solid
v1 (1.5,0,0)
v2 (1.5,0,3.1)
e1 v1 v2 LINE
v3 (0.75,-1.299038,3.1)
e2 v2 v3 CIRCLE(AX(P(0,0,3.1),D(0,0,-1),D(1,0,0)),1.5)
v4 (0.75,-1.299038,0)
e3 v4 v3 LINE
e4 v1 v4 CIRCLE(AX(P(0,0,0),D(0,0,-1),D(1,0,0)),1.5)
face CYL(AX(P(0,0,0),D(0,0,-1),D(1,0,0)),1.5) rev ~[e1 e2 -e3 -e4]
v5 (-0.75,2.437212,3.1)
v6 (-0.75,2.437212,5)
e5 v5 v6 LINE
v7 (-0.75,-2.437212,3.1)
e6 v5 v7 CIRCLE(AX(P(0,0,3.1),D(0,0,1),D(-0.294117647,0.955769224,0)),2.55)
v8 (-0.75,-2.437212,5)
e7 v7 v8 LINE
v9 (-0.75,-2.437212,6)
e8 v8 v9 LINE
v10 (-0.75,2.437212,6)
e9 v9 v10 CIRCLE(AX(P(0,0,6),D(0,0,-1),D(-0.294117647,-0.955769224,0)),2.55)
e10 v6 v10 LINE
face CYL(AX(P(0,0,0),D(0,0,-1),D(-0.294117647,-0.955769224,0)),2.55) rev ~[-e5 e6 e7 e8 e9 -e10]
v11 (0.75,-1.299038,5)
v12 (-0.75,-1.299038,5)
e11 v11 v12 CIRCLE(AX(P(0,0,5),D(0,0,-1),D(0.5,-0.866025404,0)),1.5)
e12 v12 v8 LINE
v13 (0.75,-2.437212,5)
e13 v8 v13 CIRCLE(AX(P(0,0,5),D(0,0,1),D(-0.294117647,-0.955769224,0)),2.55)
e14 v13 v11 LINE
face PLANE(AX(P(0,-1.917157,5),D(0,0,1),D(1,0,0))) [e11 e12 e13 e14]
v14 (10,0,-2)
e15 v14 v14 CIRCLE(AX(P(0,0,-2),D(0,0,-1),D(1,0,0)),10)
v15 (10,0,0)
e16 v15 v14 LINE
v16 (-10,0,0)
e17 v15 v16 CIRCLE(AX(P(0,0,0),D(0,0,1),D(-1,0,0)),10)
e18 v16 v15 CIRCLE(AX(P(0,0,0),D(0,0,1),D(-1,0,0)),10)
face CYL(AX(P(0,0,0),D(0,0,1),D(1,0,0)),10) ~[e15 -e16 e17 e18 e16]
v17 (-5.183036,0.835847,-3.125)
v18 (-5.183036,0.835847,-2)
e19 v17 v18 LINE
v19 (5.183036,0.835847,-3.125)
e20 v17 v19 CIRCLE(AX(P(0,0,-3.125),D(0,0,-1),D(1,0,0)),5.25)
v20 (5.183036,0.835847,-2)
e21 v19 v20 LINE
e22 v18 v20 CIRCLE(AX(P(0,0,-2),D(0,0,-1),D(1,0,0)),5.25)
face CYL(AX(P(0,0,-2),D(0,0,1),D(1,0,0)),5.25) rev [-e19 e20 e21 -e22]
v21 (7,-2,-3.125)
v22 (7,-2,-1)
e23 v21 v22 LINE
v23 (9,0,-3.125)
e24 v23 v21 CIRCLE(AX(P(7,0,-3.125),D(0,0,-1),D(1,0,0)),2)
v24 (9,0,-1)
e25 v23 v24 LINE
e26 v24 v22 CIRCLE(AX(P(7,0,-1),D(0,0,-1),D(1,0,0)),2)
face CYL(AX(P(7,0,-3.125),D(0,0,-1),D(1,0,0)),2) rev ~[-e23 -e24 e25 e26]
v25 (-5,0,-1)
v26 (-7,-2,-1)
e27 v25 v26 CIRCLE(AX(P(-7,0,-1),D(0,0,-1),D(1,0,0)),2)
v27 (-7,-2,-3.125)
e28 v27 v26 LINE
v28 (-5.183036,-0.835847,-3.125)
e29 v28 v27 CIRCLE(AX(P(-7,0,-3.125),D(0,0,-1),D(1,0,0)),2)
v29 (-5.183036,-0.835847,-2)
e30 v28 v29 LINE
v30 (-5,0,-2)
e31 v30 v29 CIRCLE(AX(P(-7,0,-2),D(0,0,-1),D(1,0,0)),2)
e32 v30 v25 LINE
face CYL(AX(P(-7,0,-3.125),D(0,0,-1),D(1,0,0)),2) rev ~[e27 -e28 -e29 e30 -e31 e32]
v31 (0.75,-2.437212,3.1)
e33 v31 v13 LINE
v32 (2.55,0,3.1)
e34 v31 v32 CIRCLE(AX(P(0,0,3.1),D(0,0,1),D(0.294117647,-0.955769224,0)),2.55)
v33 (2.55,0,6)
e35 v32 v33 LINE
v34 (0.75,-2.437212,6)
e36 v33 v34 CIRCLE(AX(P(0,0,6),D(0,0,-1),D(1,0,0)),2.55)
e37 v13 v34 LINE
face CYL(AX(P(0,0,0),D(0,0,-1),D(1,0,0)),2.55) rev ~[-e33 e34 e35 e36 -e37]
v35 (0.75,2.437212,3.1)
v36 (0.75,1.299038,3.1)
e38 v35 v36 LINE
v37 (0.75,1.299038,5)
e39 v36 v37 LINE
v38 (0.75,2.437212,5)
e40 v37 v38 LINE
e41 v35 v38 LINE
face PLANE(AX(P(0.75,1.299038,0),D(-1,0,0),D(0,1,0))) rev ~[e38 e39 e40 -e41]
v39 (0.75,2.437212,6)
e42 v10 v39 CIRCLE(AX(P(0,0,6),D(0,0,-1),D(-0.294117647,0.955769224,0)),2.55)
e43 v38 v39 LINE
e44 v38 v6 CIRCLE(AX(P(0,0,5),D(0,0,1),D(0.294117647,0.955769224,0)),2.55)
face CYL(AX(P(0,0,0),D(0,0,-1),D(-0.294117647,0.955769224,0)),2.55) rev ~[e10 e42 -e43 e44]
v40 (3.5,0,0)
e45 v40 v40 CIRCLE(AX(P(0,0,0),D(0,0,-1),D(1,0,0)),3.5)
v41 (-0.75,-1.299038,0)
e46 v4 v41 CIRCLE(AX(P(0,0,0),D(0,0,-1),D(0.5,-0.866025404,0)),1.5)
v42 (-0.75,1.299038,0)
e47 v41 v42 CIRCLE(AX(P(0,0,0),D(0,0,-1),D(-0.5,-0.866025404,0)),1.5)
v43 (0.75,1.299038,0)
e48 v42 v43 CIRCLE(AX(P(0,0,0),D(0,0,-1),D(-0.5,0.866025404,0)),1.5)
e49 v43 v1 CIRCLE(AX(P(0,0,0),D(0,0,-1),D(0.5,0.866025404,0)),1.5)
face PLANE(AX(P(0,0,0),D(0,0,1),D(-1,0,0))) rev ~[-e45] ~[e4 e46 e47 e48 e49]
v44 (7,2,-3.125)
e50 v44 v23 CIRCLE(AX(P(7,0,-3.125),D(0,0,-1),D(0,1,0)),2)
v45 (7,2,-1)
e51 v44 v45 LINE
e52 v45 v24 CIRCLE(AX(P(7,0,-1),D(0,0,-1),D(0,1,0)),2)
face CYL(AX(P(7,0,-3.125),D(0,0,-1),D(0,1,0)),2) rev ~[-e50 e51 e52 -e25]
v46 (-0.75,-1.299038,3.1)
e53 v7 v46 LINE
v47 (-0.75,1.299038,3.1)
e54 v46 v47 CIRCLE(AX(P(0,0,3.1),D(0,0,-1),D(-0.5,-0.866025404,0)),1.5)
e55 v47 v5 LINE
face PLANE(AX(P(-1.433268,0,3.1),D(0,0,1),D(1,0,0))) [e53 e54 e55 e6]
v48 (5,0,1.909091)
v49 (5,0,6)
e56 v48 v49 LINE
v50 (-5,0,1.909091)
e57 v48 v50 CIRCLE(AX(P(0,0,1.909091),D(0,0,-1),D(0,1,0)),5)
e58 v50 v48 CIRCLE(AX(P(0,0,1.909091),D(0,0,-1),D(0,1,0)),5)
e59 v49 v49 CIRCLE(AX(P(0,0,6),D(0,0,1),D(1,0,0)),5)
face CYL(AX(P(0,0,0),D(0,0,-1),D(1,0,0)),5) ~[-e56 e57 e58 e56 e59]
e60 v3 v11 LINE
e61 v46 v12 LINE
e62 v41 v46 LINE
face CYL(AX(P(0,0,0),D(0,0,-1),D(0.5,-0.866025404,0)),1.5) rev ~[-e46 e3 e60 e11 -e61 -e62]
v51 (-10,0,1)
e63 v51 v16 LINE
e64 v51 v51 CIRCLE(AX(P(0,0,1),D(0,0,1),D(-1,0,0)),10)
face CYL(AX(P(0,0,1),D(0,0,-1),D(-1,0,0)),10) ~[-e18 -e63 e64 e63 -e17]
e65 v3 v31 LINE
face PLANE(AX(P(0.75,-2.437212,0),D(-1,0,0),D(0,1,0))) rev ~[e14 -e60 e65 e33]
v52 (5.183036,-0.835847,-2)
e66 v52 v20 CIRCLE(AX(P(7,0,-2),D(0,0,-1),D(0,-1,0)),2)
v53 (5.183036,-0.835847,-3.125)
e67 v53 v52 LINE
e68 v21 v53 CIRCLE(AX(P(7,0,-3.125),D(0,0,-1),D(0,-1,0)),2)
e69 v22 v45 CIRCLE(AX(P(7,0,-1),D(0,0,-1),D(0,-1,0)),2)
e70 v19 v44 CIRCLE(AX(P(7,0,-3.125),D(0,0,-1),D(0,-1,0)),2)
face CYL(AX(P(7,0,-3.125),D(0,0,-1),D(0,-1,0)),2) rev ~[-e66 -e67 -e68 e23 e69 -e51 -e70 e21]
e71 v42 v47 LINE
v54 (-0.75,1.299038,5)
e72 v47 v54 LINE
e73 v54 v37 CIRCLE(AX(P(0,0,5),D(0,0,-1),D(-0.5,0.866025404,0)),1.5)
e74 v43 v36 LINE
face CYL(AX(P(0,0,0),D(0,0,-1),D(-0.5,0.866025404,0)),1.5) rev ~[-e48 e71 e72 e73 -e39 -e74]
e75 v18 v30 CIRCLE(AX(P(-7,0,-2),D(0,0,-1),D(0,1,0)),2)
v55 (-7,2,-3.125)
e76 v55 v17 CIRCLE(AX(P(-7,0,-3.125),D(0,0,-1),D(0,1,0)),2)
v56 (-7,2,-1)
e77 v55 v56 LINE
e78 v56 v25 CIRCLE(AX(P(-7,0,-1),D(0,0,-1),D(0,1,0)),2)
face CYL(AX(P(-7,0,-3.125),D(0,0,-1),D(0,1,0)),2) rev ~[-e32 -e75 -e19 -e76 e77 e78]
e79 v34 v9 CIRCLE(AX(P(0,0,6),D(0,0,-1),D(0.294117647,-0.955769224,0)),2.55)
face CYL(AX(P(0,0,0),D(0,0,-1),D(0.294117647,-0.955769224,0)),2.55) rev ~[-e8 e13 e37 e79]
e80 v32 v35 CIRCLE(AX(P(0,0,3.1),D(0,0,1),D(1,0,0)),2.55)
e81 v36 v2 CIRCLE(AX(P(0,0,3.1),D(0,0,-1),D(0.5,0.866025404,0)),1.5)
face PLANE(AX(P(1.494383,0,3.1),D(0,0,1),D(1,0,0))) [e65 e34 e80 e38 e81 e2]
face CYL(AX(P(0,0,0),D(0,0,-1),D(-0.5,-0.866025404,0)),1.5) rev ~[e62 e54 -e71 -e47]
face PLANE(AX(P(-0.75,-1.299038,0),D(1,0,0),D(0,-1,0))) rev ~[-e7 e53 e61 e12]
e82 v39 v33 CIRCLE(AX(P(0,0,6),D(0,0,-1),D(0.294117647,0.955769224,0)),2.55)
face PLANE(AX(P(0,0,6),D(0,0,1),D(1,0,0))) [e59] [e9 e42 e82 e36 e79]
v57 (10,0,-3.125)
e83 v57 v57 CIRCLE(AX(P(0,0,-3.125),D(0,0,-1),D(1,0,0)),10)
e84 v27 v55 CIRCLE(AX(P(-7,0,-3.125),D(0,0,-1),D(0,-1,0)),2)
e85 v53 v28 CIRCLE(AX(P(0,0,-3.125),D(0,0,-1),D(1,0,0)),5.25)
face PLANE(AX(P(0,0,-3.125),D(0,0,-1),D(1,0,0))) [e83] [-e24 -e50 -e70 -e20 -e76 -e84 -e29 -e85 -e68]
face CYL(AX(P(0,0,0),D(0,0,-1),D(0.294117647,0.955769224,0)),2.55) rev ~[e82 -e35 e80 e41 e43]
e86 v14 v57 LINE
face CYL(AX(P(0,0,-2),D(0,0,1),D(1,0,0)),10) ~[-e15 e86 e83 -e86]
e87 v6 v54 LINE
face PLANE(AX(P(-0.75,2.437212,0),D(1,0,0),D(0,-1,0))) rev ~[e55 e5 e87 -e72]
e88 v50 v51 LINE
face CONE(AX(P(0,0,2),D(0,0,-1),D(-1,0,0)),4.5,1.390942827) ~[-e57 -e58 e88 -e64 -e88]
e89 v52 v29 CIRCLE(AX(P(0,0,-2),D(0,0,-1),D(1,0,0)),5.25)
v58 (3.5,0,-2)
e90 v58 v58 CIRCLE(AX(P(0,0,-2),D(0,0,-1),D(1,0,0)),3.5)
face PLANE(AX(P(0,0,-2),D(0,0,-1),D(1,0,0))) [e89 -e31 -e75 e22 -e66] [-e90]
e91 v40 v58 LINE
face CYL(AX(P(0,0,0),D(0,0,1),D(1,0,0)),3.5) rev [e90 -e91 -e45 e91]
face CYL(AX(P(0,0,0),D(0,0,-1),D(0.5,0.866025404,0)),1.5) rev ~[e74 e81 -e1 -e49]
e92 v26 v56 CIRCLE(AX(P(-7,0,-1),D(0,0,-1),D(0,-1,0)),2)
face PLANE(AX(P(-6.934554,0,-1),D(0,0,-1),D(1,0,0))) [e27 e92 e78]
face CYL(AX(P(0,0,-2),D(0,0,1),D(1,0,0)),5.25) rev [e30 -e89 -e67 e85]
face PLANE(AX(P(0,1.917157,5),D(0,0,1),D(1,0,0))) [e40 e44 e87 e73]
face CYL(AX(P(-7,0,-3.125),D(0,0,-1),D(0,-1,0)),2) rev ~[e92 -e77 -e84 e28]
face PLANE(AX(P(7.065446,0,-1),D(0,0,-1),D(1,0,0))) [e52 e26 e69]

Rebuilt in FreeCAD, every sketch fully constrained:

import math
import FreeCAD as App
import Part
import Sketcher
from FreeCAD import Vector
Q = App.Units.Quantity

doc = App.newDocument("Part")
body = doc.addObject("PartDesign::Body", "Body")

# Sketch on XY plane
sketch1 = body.newObject("Sketcher::SketchObject", "Sketch")
sketch1.AttachmentSupport = (doc.getObject("XY_Plane"), [""])
sketch1.MapMode = "FlatFace"
sketch1.addGeometry(Part.Circle(Vector(0, 0, 0), Vector(0, 0, 1), 5), False)
sketch1.addGeometry(Part.ArcOfCircle(Part.Circle(Vector(0, 0, 0), Vector(0, 0, 1), 2.55), math.radians(72.895365), math.radians(107.104635)), False)
sketch1.addGeometry(Part.ArcOfCircle(Part.Circle(Vector(0, 0, 0), Vector(0, 0, 1), 2.55), math.radians(0), math.radians(72.895365)), False)
sketch1.addGeometry(Part.ArcOfCircle(Part.Circle(Vector(0, 0, 0), Vector(0, 0, 1), 2.55), math.radians(-72.895365), math.radians(0)), False)
sketch1.addGeometry(Part.ArcOfCircle(Part.Circle(Vector(0, 0, 0), Vector(0, 0, 1), 2.55), math.radians(-107.104635), math.radians(-72.895365)), False)
sketch1.addGeometry(Part.ArcOfCircle(Part.Circle(Vector(0, 0, 0), Vector(0, 0, 1), 2.55), math.radians(107.104635), math.radians(252.895365)), False)
sketch1.addConstraint(Sketcher.Constraint("Tangent", 1, 1, 2, 2))
sketch1.addConstraint(Sketcher.Constraint("Tangent", 2, 1, 3, 2))
sketch1.addConstraint(Sketcher.Constraint("Tangent", 3, 1, 4, 2))
sketch1.addConstraint(Sketcher.Constraint("Tangent", 4, 1, 5, 2))
sketch1.addConstraint(Sketcher.Constraint("Tangent", 5, 1, 1, 2))
sketch1.addConstraint(Sketcher.Constraint("Coincident", 0, 3, -1, 1))
sketch1.addConstraint(Sketcher.Constraint("Coincident", 1, 3, -1, 1))
sketch1.addConstraint(Sketcher.Constraint("Coincident", 3, 3, -1, 1))
sketch1.addConstraint(Sketcher.Constraint("PointOnObject", 2, 1, -1))
sketch1.addConstraint(Sketcher.Constraint("Horizontal", 3, 1, 4, 1))
sketch1.addConstraint(Sketcher.Constraint("Horizontal", 1, 1, 5, 1))
sketch1.addConstraint(Sketcher.Constraint("Vertical", 1, 1, 3, 1))
sketch1.addConstraint(Sketcher.Constraint("Diameter", 0, Q("10 mm")))
sketch1.addConstraint(Sketcher.Constraint("Radius", 1, Q("2.55 mm")))
sketch1.addConstraint(Sketcher.Constraint("DistanceX", 4, 1, 3, 1, Q("1.5 mm")))
pad1 = body.newObject("PartDesign::Pad", "Pad")
pad1.Profile = sketch1
pad1.Length = 6

# Sketch on XY plane
sketch2 = body.newObject("Sketcher::SketchObject", "Sketch001")
sketch2.AttachmentSupport = (doc.getObject("XY_Plane"), [""])
sketch2.MapMode = "FlatFace"
sketch2.addGeometry(Part.LineSegment(Vector(0.75, 1.299038, 0), Vector(0.75, 2.437212, 0)), False)
sketch2.addGeometry(Part.ArcOfCircle(Part.Circle(Vector(0, 0, 0), Vector(0, 0, 1), 2.55), math.radians(72.895365), math.radians(107.104635)), False)
sketch2.addGeometry(Part.LineSegment(Vector(-0.75, 2.437212, 0), Vector(-0.75, 1.299038, 0)), False)
sketch2.addGeometry(Part.ArcOfCircle(Part.Circle(Vector(0, 0, 0), Vector(0, 0, 1), 1.5), math.radians(60), math.radians(120)), False)
sketch2.addGeometry(Part.ArcOfCircle(Part.Circle(Vector(0, 0, 0), Vector(0, 0, 1), 2.55), math.radians(-107.104635), math.radians(-72.895365)), False)
sketch2.addGeometry(Part.LineSegment(Vector(0.75, -2.437212, 0), Vector(0.75, -1.299038, 0)), False)
sketch2.addGeometry(Part.ArcOfCircle(Part.Circle(Vector(0, 0, 0), Vector(0, 0, 1), 1.5), math.radians(-120), math.radians(-60)), False)
sketch2.addGeometry(Part.LineSegment(Vector(-0.75, -1.299038, 0), Vector(-0.75, -2.437212, 0)), False)
sketch2.addConstraint(Sketcher.Constraint("Coincident", 0, 2, 1, 1))
sketch2.addConstraint(Sketcher.Constraint("Coincident", 1, 2, 2, 1))
sketch2.addConstraint(Sketcher.Constraint("Coincident", 2, 2, 3, 2))
sketch2.addConstraint(Sketcher.Constraint("Coincident", 3, 1, 0, 1))
sketch2.addConstraint(Sketcher.Constraint("Coincident", 4, 2, 5, 1))
sketch2.addConstraint(Sketcher.Constraint("Coincident", 5, 2, 6, 2))
sketch2.addConstraint(Sketcher.Constraint("Coincident", 6, 1, 7, 1))
sketch2.addConstraint(Sketcher.Constraint("Coincident", 7, 2, 4, 1))
sketch2.addConstraint(Sketcher.Constraint("Vertical", 0))
sketch2.addConstraint(Sketcher.Constraint("Vertical", 2))
sketch2.addConstraint(Sketcher.Constraint("Vertical", 5))
sketch2.addConstraint(Sketcher.Constraint("Vertical", 7))
sketch2.addConstraint(Sketcher.Constraint("Coincident", 1, 3, -1, 1))
sketch2.addConstraint(Sketcher.Constraint("Coincident", 3, 3, -1, 1))
sketch2.addConstraint(Sketcher.Constraint("Coincident", 4, 3, -1, 1))
sketch2.addConstraint(Sketcher.Constraint("Coincident", 6, 3, -1, 1))
sketch2.addConstraint(Sketcher.Constraint("Equal", 1, 4))
sketch2.addConstraint(Sketcher.Constraint("Equal", 3, 6))
sketch2.addConstraint(Sketcher.Constraint("Horizontal", 0, 2, 1, 2))
sketch2.addConstraint(Sketcher.Constraint("Horizontal", 5, 2, 6, 1))
sketch2.addConstraint(Sketcher.Constraint("Vertical", 3, 1, 4, 2))
sketch2.addConstraint(Sketcher.Constraint("Radius", 3, Q("1.5 mm")))
sketch2.addConstraint(Sketcher.Constraint("Radius", 1, Q("2.55 mm")))
sketch2.addConstraint(Sketcher.Constraint("DistanceX", 1, 2, 0, 2, Q("1.5 mm")))
pad2 = body.newObject("PartDesign::Pad", "Pad001")
pad2.Profile = sketch2
pad2.Length = 5

# Sketch on XY plane
sketch3 = body.newObject("Sketcher::SketchObject", "Sketch002")
sketch3.AttachmentSupport = (doc.getObject("XY_Plane"), [""])
sketch3.MapMode = "FlatFace"
sketch3.addGeometry(Part.LineSegment(Vector(-0.75, 1.299038, 0), Vector(-0.75, 2.437212, 0)), False)
sketch3.addGeometry(Part.ArcOfCircle(Part.Circle(Vector(0, 0, 0), Vector(0, 0, 1), 2.55), math.radians(107.104635), math.radians(252.895365)), False)
sketch3.addGeometry(Part.LineSegment(Vector(-0.75, -2.437212, 0), Vector(-0.75, -1.299038, 0)), False)
sketch3.addGeometry(Part.ArcOfCircle(Part.Circle(Vector(0, 0, 0), Vector(0, 0, 1), 1.5), math.radians(120), math.radians(240)), False)
sketch3.addGeometry(Part.ArcOfCircle(Part.Circle(Vector(0, 0, 0), Vector(0, 0, 1), 2.55), math.radians(-72.895365), math.radians(0)), False)
sketch3.addGeometry(Part.ArcOfCircle(Part.Circle(Vector(0, 0, 0), Vector(0, 0, 1), 2.55), math.radians(0), math.radians(72.895365)), False)
sketch3.addGeometry(Part.LineSegment(Vector(0.75, 2.437212, 0), Vector(0.75, 1.299038, 0)), False)
sketch3.addGeometry(Part.ArcOfCircle(Part.Circle(Vector(0, 0, 0), Vector(0, 0, 1), 1.5), math.radians(0), math.radians(60)), False)
sketch3.addGeometry(Part.ArcOfCircle(Part.Circle(Vector(0, 0, 0), Vector(0, 0, 1), 1.5), math.radians(-60), math.radians(0)), False)
sketch3.addGeometry(Part.LineSegment(Vector(0.75, -1.299038, 0), Vector(0.75, -2.437212, 0)), False)
sketch3.addConstraint(Sketcher.Constraint("Coincident", 0, 2, 1, 1))
sketch3.addConstraint(Sketcher.Constraint("Coincident", 1, 2, 2, 1))
sketch3.addConstraint(Sketcher.Constraint("Coincident", 2, 2, 3, 2))
sketch3.addConstraint(Sketcher.Constraint("Coincident", 3, 1, 0, 1))
sketch3.addConstraint(Sketcher.Constraint("Tangent", 4, 2, 5, 1))
sketch3.addConstraint(Sketcher.Constraint("Coincident", 5, 2, 6, 1))
sketch3.addConstraint(Sketcher.Constraint("Coincident", 6, 2, 7, 2))
sketch3.addConstraint(Sketcher.Constraint("Tangent", 7, 1, 8, 2))
sketch3.addConstraint(Sketcher.Constraint("Coincident", 8, 1, 9, 1))
sketch3.addConstraint(Sketcher.Constraint("Coincident", 9, 2, 4, 1))
sketch3.addConstraint(Sketcher.Constraint("Vertical", 0))
sketch3.addConstraint(Sketcher.Constraint("Vertical", 2))
sketch3.addConstraint(Sketcher.Constraint("Vertical", 6))
sketch3.addConstraint(Sketcher.Constraint("Vertical", 9))
sketch3.addConstraint(Sketcher.Constraint("Coincident", 1, 3, -1, 1))
sketch3.addConstraint(Sketcher.Constraint("Coincident", 3, 3, -1, 1))
sketch3.addConstraint(Sketcher.Constraint("Coincident", 4, 3, -1, 1))
sketch3.addConstraint(Sketcher.Constraint("Coincident", 7, 3, -1, 1))
sketch3.addConstraint(Sketcher.Constraint("Equal", 1, 4))
sketch3.addConstraint(Sketcher.Constraint("Equal", 4, 5))
sketch3.addConstraint(Sketcher.Constraint("Equal", 3, 7))
sketch3.addConstraint(Sketcher.Constraint("Equal", 7, 8))
sketch3.addConstraint(Sketcher.Constraint("PointOnObject", 4, 2, -1))
sketch3.addConstraint(Sketcher.Constraint("PointOnObject", 7, 1, -1))
sketch3.addConstraint(Sketcher.Constraint("Horizontal", 0, 2, 5, 2))
sketch3.addConstraint(Sketcher.Constraint("Horizontal", 2, 2, 8, 1))
sketch3.addConstraint(Sketcher.Constraint("Vertical", 0, 2, 1, 2))
sketch3.addConstraint(Sketcher.Constraint("Radius", 3, Q("1.5 mm")))
sketch3.addConstraint(Sketcher.Constraint("Radius", 1, Q("2.55 mm")))
sketch3.addConstraint(Sketcher.Constraint("DistanceX", 0, 2, 5, 2, Q("1.5 mm")))
pad3 = body.newObject("PartDesign::Pad", "Pad002")
pad3.Profile = sketch3
pad3.Length = 3.1

# Sketch on XZ plane
sketch4 = body.newObject("Sketcher::SketchObject", "Sketch003")
sketch4.AttachmentSupport = (doc.getObject("XZ_Plane"), [""])
sketch4.MapMode = "FlatFace"
sketch4.addGeometry(Part.LineSegment(Vector(-10, 0, 0), Vector(-4, 0, 0)), False)
sketch4.addGeometry(Part.LineSegment(Vector(-4, 0, 0), Vector(-4, 2, 0)), False)
sketch4.addGeometry(Part.LineSegment(Vector(-4, 2, 0), Vector(-4.5, 2, 0)), False)
sketch4.addGeometry(Part.LineSegment(Vector(-4.5, 2, 0), Vector(-10, 1, 0)), False)
sketch4.addGeometry(Part.LineSegment(Vector(-10, 1, 0), Vector(-10, 0, 0)), False)
sketch4.addConstraint(Sketcher.Constraint("Coincident", 0, 2, 1, 1))
sketch4.addConstraint(Sketcher.Constraint("Coincident", 1, 2, 2, 1))
sketch4.addConstraint(Sketcher.Constraint("Coincident", 2, 2, 3, 1))
sketch4.addConstraint(Sketcher.Constraint("Coincident", 3, 2, 4, 1))
sketch4.addConstraint(Sketcher.Constraint("Coincident", 4, 2, 0, 1))
sketch4.addConstraint(Sketcher.Constraint("Horizontal", 0))
sketch4.addConstraint(Sketcher.Constraint("Vertical", 1))
sketch4.addConstraint(Sketcher.Constraint("Horizontal", 2))
sketch4.addConstraint(Sketcher.Constraint("Vertical", 4))
sketch4.addConstraint(Sketcher.Constraint("PointOnObject", 0, 2, -1))
sketch4.addConstraint(Sketcher.Constraint("DistanceX", 0, 1, 0, 2, Q("6 mm")))
sketch4.addConstraint(Sketcher.Constraint("DistanceY", 1, 1, 1, 2, Q("2 mm")))
sketch4.addConstraint(Sketcher.Constraint("DistanceY", 4, 2, 4, 1, Q("1 mm")))
sketch4.addConstraint(Sketcher.Constraint("DistanceX", 2, 2, 2, 1, Q("0.5 mm")))
sketch4.addConstraint(Sketcher.Constraint("DistanceX", 0, 2, -1, 1, Q("4 mm")))
revolution = body.newObject("PartDesign::Revolution", "Revolution")
revolution.Profile = sketch4
revolution.ReferenceAxis = (sketch4, ["V_Axis"])
revolution.Angle = 360

# Sketch on XY plane
sketch5 = body.newObject("Sketcher::SketchObject", "Sketch004")
sketch5.AttachmentSupport = (doc.getObject("XY_Plane"), [""])
sketch5.MapMode = "FlatFace"
sketch5.addGeometry(Part.Circle(Vector(0, 0, 0), Vector(0, 0, 1), 10), False)
sketch5.addGeometry(Part.Circle(Vector(0, 0, 0), Vector(0, 0, 1), 3.5), False)
sketch5.addConstraint(Sketcher.Constraint("Coincident", 0, 3, -1, 1))
sketch5.addConstraint(Sketcher.Constraint("Coincident", 1, 3, -1, 1))
sketch5.addConstraint(Sketcher.Constraint("Diameter", 0, Q("20 mm")))
sketch5.addConstraint(Sketcher.Constraint("Diameter", 1, Q("7 mm")))
pad4 = body.newObject("PartDesign::Pad", "Pad003")
pad4.Profile = sketch5
pad4.Length = 2
pad4.Reversed = True

# Sketch on XY plane
sketch6 = body.newObject("Sketcher::SketchObject", "Sketch005")
sketch6.AttachmentSupport = (doc.getObject("XY_Plane"), [""])
sketch6.MapMode = "FlatFace"
sketch6.AttachmentOffset = App.Placement(Vector(0, 0, -2), App.Rotation())
sketch6.addGeometry(Part.Circle(Vector(0, 0, 0), Vector(0, 0, 1), 10), False)
sketch6.addGeometry(Part.Circle(Vector(0, 0, 0), Vector(0, 0, 1), 5.25), False)
sketch6.addConstraint(Sketcher.Constraint("Coincident", 0, 3, -1, 1))
sketch6.addConstraint(Sketcher.Constraint("Coincident", 1, 3, -1, 1))
sketch6.addConstraint(Sketcher.Constraint("Diameter", 0, Q("20 mm")))
sketch6.addConstraint(Sketcher.Constraint("Diameter", 1, Q("10.5 mm")))
pad5 = body.newObject("PartDesign::Pad", "Pad004")
pad5.Profile = sketch6
pad5.Length = 1.125
pad5.Reversed = True

# Sketch on XY plane
sketch7 = body.newObject("Sketcher::SketchObject", "Sketch006")
sketch7.AttachmentSupport = (doc.getObject("XY_Plane"), [""])
sketch7.MapMode = "FlatFace"
sketch7.AttachmentOffset = App.Placement(Vector(0, 0, -3.125), App.Rotation())
sketch7.addGeometry(Part.ArcOfCircle(Part.Circle(Vector(-7, 0, 0), Vector(0, 0, 1), 2), math.radians(0), math.radians(90)), False)
sketch7.addGeometry(Part.ArcOfCircle(Part.Circle(Vector(-7, 0, 0), Vector(0, 0, 1), 2), math.radians(-90), math.radians(0)), False)
sketch7.addGeometry(Part.ArcOfCircle(Part.Circle(Vector(-7, 0, 0), Vector(0, 0, 1), 2), math.radians(90), math.radians(270)), False)
sketch7.addGeometry(Part.ArcOfCircle(Part.Circle(Vector(7, 0, 0), Vector(0, 0, 1), 2), math.radians(0), math.radians(90)), False)
sketch7.addGeometry(Part.ArcOfCircle(Part.Circle(Vector(7, 0, 0), Vector(0, 0, 1), 2), math.radians(-90), math.radians(0)), False)
sketch7.addGeometry(Part.ArcOfCircle(Part.Circle(Vector(7, 0, 0), Vector(0, 0, 1), 2), math.radians(90), math.radians(270)), False)
sketch7.addConstraint(Sketcher.Constraint("Tangent", 0, 1, 1, 2))
sketch7.addConstraint(Sketcher.Constraint("Tangent", 1, 1, 2, 2))
sketch7.addConstraint(Sketcher.Constraint("Tangent", 2, 1, 0, 2))
sketch7.addConstraint(Sketcher.Constraint("Tangent", 3, 1, 4, 2))
sketch7.addConstraint(Sketcher.Constraint("Tangent", 4, 1, 5, 2))
sketch7.addConstraint(Sketcher.Constraint("Tangent", 5, 1, 3, 2))
sketch7.addConstraint(Sketcher.Constraint("Equal", 2, 3))
sketch7.addConstraint(Sketcher.Constraint("Symmetric", 0, 3, 3, 3, -1, 1))
sketch7.addConstraint(Sketcher.Constraint("Symmetric", 1, 1, 4, 1, -2))
sketch7.addConstraint(Sketcher.Constraint("PointOnObject", 0, 1, -1))
sketch7.addConstraint(Sketcher.Constraint("PointOnObject", 3, 1, -1))
sketch7.addConstraint(Sketcher.Constraint("Vertical", 2, 3, 1, 1))
sketch7.addConstraint(Sketcher.Constraint("Vertical", 1, 1, 2, 1))
sketch7.addConstraint(Sketcher.Constraint("Vertical", 4, 1, 5, 1))
sketch7.addConstraint(Sketcher.Constraint("Radius", 0, Q("2 mm")))
sketch7.addConstraint(Sketcher.Constraint("DistanceX", 0, 3, -1, 1, Q("7 mm")))
pocket1 = body.newObject("PartDesign::Pocket", "Pocket")
pocket1.Profile = sketch7
pocket1.Length = 2.125
pocket1.Reversed = True

doc.recompute()
